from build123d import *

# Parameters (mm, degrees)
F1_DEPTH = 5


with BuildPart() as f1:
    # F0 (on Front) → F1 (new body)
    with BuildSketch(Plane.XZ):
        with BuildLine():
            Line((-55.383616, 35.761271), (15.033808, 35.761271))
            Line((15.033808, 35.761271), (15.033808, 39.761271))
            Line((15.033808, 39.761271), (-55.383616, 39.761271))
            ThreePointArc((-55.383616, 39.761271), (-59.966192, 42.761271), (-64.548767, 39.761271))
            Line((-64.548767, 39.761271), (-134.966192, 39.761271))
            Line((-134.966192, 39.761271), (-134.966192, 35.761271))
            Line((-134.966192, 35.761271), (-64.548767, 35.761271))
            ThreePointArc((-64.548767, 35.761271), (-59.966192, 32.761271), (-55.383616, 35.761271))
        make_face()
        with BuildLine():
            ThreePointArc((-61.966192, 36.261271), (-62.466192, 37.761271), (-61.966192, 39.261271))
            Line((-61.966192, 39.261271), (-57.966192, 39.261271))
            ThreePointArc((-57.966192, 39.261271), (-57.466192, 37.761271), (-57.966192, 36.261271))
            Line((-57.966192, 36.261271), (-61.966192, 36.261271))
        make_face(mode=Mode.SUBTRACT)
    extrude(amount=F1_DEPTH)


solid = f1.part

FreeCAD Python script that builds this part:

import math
import FreeCAD as App
import Part
import Sketcher

V = App.Vector

doc = App.newDocument("Part")
body = doc.addObject("PartDesign::Body", "Body")

sketch1 = body.newObject("Sketcher::SketchObject", "Sketch")
sketch1.AttachmentSupport = (doc.getObject("XZ_Plane"), [""])
sketch1.MapMode = "FlatFace"
sketch1.addGeometry([
    Part.LineSegment(V(-55.4, 35.8, 0), V(15, 35.8, 0)),
    Part.LineSegment(V(15, 35.8, 0), V(15, 39.8, 0)),
    Part.LineSegment(V(15, 39.8, 0), V(-55.4, 39.8, 0)),
    Part.ArcOfCircle(Part.Circle(V(-60, 37.8, 0), V(0, 0, 1), 5), math.radians(24), math.radians(156)),
    Part.LineSegment(V(-64.5, 39.8, 0), V(-135, 39.8, 0)),
    Part.LineSegment(V(-135, 39.8, 0), V(-135, 35.8, 0)),
    Part.LineSegment(V(-135, 35.8, 0), V(-64.5, 35.8, 0)),
    Part.ArcOfCircle(Part.Circle(V(-60, 37.8, 0), V(0, 0, 1), 5), math.radians(-156), math.radians(-24)),
    Part.LineSegment(V(-58, 36.3, 0), V(-62, 36.3, 0)),
    Part.ArcOfCircle(Part.Circle(V(-60, 37.8, 0), V(0, 0, 1), 2.5), math.radians(143), math.radians(217)),
    Part.LineSegment(V(-62, 39.3, 0), V(-58, 39.3, 0)),
    Part.ArcOfCircle(Part.Circle(V(-60, 37.8, 0), V(0, 0, 1), 2.5), math.radians(-37), math.radians(37)),
], False)
sketch1.addConstraint([
    Sketcher.Constraint("Coincident", 0, 2, 1, 1),
    Sketcher.Constraint("Coincident", 1, 2, 2, 1),
    Sketcher.Constraint("Coincident", 2, 2, 3, 1),
    Sketcher.Constraint("Coincident", 3, 2, 4, 1),
    Sketcher.Constraint("Coincident", 4, 2, 5, 1),
    Sketcher.Constraint("Coincident", 5, 2, 6, 1),
    Sketcher.Constraint("Coincident", 6, 2, 7, 1),
    Sketcher.Constraint("Coincident", 7, 2, 0, 1),
    Sketcher.Constraint("Coincident", 8, 2, 9, 2),
    Sketcher.Constraint("Coincident", 9, 1, 10, 1),
    Sketcher.Constraint("Coincident", 10, 2, 11, 2),
    Sketcher.Constraint("Coincident", 11, 1, 8, 1),
    Sketcher.Constraint("Horizontal", 0),
    Sketcher.Constraint("Vertical", 1),
    Sketcher.Constraint("Horizontal", 2),
    Sketcher.Constraint("Horizontal", 4),
    Sketcher.Constraint("Vertical", 5),
    Sketcher.Constraint("Horizontal", 6),
    Sketcher.Constraint("Horizontal", 8),
    Sketcher.Constraint("Horizontal", 10),
    Sketcher.Constraint("Coincident", 7, 3, 3, 3),
    Sketcher.Constraint("Coincident", 9, 3, 3, 3),
    Sketcher.Constraint("Coincident", 11, 3, 3, 3),
    Sketcher.Constraint("Equal", 3, 7),
    Sketcher.Constraint("Equal", 9, 11),
    Sketcher.Constraint("Horizontal", 2, 2, 3, 2),
    Sketcher.Constraint("Horizontal", 0, 2, 5, 2),
    Sketcher.Constraint("Vertical", 3, 2, 6, 2),
    Sketcher.Constraint("Vertical", 8, 2, 9, 1),
    Sketcher.Constraint("Equal", 2, 4),
    Sketcher.Constraint("Equal", 10, 1),
    Sketcher.Constraint("Radius", 3, 5.0),
    Sketcher.Constraint("Radius", 9, 2.5),
    Sketcher.Constraint("DistanceX", 8, 2, 8, 1, 4.0),
    Sketcher.Constraint("DistanceX", 7, 3, 0, 2, 75.0),
    Sketcher.Constraint("DistanceX", 3, 3, -1, 1, 59.966192),
    Sketcher.Constraint("DistanceY", -1, 1, 3, 3, 37.761271),
])
pad1 = body.newObject("PartDesign::Pad", "Pad")
pad1.Profile = sketch1
pad1.Length = 5

doc.recompute()
